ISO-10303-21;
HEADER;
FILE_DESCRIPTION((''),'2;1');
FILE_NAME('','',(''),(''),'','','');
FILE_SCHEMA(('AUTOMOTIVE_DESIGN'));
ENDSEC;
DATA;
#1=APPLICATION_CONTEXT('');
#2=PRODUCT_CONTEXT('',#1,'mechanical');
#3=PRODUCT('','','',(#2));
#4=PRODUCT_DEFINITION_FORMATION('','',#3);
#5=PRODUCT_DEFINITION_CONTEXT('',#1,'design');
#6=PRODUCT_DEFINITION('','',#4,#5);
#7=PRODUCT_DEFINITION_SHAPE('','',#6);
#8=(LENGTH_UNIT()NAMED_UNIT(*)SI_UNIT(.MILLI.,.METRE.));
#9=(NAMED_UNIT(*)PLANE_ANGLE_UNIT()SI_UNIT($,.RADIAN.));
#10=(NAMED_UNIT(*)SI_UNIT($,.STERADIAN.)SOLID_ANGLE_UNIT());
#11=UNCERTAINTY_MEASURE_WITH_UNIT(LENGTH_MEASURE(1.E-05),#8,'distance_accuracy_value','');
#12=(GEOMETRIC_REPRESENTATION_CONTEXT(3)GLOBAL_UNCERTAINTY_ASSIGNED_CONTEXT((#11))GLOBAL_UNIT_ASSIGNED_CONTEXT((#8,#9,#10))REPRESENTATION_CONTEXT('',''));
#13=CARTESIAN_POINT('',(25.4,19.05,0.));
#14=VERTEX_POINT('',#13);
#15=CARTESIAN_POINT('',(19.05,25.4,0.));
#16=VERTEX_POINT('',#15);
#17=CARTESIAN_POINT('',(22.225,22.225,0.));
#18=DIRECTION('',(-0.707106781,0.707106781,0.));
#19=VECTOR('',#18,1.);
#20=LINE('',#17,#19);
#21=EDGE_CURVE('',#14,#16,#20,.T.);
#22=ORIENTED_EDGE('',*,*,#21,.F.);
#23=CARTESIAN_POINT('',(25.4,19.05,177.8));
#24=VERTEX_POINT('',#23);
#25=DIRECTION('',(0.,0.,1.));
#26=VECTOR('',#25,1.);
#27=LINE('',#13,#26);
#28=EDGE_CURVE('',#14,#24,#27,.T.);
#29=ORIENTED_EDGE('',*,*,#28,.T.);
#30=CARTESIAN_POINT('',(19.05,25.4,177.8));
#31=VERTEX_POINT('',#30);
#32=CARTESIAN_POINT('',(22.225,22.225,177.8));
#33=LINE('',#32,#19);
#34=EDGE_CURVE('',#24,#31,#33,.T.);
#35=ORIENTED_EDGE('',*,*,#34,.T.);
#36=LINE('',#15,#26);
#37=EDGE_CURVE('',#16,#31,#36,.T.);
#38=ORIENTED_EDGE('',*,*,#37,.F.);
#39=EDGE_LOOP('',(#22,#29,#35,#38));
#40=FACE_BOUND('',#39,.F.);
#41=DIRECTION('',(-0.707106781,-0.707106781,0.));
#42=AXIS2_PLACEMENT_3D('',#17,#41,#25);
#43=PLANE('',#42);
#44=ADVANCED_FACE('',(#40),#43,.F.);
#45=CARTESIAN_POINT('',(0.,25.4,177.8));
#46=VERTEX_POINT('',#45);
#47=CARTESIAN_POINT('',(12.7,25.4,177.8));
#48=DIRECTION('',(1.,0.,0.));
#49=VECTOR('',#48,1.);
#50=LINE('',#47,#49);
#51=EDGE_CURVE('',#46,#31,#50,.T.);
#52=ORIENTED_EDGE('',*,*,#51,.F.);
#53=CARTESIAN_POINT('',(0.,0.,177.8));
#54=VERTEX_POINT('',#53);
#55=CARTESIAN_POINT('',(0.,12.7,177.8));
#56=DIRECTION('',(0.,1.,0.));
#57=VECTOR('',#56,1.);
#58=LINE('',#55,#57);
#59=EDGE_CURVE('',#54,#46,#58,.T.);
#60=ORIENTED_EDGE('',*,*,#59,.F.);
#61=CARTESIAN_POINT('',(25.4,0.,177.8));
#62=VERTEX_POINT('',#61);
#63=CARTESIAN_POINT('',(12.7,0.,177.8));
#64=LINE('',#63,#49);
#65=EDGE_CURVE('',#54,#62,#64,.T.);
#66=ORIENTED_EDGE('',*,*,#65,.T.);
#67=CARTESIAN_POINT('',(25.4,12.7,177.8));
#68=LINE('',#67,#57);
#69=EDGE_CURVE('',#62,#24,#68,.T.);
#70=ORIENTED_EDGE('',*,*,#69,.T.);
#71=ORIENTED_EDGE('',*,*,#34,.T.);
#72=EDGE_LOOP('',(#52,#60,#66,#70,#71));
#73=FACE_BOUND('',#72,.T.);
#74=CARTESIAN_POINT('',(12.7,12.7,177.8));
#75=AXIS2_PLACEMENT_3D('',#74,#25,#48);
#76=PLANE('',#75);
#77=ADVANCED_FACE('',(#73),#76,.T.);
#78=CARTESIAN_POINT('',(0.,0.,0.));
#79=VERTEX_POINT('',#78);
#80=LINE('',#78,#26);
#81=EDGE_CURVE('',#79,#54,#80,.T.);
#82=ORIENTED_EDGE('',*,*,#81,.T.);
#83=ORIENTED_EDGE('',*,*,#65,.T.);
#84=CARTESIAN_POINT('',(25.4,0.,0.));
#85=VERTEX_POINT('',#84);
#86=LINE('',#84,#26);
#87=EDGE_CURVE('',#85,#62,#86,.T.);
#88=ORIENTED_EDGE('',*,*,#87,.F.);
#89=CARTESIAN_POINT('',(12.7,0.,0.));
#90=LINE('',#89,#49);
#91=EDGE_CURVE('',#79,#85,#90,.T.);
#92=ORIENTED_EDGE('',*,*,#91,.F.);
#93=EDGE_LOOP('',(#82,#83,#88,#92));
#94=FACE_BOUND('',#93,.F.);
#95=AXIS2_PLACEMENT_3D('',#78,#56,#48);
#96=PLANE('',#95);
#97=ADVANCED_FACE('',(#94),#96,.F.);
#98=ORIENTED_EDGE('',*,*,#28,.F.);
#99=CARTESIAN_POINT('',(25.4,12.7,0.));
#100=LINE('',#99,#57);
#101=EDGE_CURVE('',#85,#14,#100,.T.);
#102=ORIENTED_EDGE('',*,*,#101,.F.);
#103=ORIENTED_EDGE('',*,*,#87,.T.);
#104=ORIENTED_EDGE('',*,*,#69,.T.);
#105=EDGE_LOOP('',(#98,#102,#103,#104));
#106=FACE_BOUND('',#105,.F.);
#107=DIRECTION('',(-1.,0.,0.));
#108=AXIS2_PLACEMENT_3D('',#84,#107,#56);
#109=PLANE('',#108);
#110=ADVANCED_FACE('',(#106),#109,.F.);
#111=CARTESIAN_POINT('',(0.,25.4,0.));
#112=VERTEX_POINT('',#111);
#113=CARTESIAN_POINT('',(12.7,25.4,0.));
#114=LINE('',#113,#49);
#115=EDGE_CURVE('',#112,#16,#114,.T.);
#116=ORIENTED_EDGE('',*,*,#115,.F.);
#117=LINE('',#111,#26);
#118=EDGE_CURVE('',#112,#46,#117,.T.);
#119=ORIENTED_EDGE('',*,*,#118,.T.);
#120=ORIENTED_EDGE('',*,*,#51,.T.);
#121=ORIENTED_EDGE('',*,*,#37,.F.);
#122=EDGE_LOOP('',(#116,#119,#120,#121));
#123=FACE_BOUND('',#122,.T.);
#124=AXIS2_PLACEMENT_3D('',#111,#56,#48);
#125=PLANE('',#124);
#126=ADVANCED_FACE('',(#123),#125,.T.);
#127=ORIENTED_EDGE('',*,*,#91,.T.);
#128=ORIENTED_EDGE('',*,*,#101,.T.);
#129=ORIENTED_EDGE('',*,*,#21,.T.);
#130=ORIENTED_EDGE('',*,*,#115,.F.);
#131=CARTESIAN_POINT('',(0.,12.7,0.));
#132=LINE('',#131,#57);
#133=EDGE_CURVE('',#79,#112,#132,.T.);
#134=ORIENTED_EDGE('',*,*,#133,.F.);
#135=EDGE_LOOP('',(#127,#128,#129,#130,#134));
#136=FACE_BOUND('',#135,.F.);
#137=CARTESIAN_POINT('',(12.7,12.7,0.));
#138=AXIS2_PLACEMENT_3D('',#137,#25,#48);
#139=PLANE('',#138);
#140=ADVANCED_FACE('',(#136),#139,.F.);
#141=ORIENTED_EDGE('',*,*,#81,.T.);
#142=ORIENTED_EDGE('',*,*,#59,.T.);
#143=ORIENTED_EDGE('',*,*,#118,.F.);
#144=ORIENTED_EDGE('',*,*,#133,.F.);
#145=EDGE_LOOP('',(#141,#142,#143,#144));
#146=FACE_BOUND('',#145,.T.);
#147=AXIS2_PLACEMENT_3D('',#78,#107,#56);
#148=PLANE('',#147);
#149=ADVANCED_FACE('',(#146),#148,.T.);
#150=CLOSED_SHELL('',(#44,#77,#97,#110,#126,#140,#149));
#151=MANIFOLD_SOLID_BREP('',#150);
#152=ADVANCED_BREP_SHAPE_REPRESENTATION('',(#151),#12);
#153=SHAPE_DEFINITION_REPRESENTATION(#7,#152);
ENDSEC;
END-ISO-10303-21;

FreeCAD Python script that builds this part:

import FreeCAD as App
import Part
import Sketcher
Q = App.Units.Quantity


def edges_at(feature, points):
    """Names of the edges that pass closest to the given points."""
    edges = feature.Shape.Edges
    near = lambda p: min(range(len(edges)), key=lambda i: edges[i].distToShape(Part.Vertex(*p))[0])
    return sorted({f"Edge{near(p) + 1}" for p in points})

doc = App.newDocument("Part")
body = doc.addObject("PartDesign::Body", "Body")

# Sketch on XY plane
sketch1 = body.newObject("Sketcher::SketchObject", "Sketch")
sketch1.AttachmentSupport = (doc.getObject("XY_Plane"), [""])
sketch1.MapMode = "FlatFace"
sketch1.addGeometry(Part.LineSegment(App.Vector(0, 25, 0), App.Vector(0, 0, 0)), False)
sketch1.addGeometry(Part.LineSegment(App.Vector(0, 0, 0), App.Vector(25, 0, 0)), False)
sketch1.addGeometry(Part.LineSegment(App.Vector(25, 0, 0), App.Vector(25, 25, 0)), False)
sketch1.addGeometry(Part.LineSegment(App.Vector(25, 25, 0), App.Vector(0, 25, 0)), False)
sketch1.addConstraint(Sketcher.Constraint("Coincident", 0, 2, 1, 1))
sketch1.addConstraint(Sketcher.Constraint("Coincident", 1, 2, 2, 1))
sketch1.addConstraint(Sketcher.Constraint("Coincident", 2, 2, 3, 1))
sketch1.addConstraint(Sketcher.Constraint("Coincident", 3, 2, 0, 1))
sketch1.addConstraint(Sketcher.Constraint("Vertical", 0))
sketch1.addConstraint(Sketcher.Constraint("Horizontal", 1))
sketch1.addConstraint(Sketcher.Constraint("Vertical", 2))
sketch1.addConstraint(Sketcher.Constraint("Horizontal", 3))
sketch1.addConstraint(Sketcher.Constraint("Coincident", 0, 2, -1, 1))
sketch1.addConstraint(Sketcher.Constraint("Equal", 3, 0))
sketch1.addConstraint(Sketcher.Constraint("DistanceX", 1, 1, 1, 2, Q("1 in")))
pad1 = body.newObject("PartDesign::Pad", "Pad")
pad1.Profile = sketch1
pad1.Length = Q("7 in")
doc.recompute()

chamfer = body.newObject("PartDesign::Chamfer", "Chamfer")
chamfer.Base = (pad1, edges_at(pad1, [(25.4, 25.4, 88.9)]))
chamfer.ChamferType = "Two distances"
chamfer.Size = Q("0.25 in")
chamfer.Size2 = Q("0.25 in")

doc.recompute()
